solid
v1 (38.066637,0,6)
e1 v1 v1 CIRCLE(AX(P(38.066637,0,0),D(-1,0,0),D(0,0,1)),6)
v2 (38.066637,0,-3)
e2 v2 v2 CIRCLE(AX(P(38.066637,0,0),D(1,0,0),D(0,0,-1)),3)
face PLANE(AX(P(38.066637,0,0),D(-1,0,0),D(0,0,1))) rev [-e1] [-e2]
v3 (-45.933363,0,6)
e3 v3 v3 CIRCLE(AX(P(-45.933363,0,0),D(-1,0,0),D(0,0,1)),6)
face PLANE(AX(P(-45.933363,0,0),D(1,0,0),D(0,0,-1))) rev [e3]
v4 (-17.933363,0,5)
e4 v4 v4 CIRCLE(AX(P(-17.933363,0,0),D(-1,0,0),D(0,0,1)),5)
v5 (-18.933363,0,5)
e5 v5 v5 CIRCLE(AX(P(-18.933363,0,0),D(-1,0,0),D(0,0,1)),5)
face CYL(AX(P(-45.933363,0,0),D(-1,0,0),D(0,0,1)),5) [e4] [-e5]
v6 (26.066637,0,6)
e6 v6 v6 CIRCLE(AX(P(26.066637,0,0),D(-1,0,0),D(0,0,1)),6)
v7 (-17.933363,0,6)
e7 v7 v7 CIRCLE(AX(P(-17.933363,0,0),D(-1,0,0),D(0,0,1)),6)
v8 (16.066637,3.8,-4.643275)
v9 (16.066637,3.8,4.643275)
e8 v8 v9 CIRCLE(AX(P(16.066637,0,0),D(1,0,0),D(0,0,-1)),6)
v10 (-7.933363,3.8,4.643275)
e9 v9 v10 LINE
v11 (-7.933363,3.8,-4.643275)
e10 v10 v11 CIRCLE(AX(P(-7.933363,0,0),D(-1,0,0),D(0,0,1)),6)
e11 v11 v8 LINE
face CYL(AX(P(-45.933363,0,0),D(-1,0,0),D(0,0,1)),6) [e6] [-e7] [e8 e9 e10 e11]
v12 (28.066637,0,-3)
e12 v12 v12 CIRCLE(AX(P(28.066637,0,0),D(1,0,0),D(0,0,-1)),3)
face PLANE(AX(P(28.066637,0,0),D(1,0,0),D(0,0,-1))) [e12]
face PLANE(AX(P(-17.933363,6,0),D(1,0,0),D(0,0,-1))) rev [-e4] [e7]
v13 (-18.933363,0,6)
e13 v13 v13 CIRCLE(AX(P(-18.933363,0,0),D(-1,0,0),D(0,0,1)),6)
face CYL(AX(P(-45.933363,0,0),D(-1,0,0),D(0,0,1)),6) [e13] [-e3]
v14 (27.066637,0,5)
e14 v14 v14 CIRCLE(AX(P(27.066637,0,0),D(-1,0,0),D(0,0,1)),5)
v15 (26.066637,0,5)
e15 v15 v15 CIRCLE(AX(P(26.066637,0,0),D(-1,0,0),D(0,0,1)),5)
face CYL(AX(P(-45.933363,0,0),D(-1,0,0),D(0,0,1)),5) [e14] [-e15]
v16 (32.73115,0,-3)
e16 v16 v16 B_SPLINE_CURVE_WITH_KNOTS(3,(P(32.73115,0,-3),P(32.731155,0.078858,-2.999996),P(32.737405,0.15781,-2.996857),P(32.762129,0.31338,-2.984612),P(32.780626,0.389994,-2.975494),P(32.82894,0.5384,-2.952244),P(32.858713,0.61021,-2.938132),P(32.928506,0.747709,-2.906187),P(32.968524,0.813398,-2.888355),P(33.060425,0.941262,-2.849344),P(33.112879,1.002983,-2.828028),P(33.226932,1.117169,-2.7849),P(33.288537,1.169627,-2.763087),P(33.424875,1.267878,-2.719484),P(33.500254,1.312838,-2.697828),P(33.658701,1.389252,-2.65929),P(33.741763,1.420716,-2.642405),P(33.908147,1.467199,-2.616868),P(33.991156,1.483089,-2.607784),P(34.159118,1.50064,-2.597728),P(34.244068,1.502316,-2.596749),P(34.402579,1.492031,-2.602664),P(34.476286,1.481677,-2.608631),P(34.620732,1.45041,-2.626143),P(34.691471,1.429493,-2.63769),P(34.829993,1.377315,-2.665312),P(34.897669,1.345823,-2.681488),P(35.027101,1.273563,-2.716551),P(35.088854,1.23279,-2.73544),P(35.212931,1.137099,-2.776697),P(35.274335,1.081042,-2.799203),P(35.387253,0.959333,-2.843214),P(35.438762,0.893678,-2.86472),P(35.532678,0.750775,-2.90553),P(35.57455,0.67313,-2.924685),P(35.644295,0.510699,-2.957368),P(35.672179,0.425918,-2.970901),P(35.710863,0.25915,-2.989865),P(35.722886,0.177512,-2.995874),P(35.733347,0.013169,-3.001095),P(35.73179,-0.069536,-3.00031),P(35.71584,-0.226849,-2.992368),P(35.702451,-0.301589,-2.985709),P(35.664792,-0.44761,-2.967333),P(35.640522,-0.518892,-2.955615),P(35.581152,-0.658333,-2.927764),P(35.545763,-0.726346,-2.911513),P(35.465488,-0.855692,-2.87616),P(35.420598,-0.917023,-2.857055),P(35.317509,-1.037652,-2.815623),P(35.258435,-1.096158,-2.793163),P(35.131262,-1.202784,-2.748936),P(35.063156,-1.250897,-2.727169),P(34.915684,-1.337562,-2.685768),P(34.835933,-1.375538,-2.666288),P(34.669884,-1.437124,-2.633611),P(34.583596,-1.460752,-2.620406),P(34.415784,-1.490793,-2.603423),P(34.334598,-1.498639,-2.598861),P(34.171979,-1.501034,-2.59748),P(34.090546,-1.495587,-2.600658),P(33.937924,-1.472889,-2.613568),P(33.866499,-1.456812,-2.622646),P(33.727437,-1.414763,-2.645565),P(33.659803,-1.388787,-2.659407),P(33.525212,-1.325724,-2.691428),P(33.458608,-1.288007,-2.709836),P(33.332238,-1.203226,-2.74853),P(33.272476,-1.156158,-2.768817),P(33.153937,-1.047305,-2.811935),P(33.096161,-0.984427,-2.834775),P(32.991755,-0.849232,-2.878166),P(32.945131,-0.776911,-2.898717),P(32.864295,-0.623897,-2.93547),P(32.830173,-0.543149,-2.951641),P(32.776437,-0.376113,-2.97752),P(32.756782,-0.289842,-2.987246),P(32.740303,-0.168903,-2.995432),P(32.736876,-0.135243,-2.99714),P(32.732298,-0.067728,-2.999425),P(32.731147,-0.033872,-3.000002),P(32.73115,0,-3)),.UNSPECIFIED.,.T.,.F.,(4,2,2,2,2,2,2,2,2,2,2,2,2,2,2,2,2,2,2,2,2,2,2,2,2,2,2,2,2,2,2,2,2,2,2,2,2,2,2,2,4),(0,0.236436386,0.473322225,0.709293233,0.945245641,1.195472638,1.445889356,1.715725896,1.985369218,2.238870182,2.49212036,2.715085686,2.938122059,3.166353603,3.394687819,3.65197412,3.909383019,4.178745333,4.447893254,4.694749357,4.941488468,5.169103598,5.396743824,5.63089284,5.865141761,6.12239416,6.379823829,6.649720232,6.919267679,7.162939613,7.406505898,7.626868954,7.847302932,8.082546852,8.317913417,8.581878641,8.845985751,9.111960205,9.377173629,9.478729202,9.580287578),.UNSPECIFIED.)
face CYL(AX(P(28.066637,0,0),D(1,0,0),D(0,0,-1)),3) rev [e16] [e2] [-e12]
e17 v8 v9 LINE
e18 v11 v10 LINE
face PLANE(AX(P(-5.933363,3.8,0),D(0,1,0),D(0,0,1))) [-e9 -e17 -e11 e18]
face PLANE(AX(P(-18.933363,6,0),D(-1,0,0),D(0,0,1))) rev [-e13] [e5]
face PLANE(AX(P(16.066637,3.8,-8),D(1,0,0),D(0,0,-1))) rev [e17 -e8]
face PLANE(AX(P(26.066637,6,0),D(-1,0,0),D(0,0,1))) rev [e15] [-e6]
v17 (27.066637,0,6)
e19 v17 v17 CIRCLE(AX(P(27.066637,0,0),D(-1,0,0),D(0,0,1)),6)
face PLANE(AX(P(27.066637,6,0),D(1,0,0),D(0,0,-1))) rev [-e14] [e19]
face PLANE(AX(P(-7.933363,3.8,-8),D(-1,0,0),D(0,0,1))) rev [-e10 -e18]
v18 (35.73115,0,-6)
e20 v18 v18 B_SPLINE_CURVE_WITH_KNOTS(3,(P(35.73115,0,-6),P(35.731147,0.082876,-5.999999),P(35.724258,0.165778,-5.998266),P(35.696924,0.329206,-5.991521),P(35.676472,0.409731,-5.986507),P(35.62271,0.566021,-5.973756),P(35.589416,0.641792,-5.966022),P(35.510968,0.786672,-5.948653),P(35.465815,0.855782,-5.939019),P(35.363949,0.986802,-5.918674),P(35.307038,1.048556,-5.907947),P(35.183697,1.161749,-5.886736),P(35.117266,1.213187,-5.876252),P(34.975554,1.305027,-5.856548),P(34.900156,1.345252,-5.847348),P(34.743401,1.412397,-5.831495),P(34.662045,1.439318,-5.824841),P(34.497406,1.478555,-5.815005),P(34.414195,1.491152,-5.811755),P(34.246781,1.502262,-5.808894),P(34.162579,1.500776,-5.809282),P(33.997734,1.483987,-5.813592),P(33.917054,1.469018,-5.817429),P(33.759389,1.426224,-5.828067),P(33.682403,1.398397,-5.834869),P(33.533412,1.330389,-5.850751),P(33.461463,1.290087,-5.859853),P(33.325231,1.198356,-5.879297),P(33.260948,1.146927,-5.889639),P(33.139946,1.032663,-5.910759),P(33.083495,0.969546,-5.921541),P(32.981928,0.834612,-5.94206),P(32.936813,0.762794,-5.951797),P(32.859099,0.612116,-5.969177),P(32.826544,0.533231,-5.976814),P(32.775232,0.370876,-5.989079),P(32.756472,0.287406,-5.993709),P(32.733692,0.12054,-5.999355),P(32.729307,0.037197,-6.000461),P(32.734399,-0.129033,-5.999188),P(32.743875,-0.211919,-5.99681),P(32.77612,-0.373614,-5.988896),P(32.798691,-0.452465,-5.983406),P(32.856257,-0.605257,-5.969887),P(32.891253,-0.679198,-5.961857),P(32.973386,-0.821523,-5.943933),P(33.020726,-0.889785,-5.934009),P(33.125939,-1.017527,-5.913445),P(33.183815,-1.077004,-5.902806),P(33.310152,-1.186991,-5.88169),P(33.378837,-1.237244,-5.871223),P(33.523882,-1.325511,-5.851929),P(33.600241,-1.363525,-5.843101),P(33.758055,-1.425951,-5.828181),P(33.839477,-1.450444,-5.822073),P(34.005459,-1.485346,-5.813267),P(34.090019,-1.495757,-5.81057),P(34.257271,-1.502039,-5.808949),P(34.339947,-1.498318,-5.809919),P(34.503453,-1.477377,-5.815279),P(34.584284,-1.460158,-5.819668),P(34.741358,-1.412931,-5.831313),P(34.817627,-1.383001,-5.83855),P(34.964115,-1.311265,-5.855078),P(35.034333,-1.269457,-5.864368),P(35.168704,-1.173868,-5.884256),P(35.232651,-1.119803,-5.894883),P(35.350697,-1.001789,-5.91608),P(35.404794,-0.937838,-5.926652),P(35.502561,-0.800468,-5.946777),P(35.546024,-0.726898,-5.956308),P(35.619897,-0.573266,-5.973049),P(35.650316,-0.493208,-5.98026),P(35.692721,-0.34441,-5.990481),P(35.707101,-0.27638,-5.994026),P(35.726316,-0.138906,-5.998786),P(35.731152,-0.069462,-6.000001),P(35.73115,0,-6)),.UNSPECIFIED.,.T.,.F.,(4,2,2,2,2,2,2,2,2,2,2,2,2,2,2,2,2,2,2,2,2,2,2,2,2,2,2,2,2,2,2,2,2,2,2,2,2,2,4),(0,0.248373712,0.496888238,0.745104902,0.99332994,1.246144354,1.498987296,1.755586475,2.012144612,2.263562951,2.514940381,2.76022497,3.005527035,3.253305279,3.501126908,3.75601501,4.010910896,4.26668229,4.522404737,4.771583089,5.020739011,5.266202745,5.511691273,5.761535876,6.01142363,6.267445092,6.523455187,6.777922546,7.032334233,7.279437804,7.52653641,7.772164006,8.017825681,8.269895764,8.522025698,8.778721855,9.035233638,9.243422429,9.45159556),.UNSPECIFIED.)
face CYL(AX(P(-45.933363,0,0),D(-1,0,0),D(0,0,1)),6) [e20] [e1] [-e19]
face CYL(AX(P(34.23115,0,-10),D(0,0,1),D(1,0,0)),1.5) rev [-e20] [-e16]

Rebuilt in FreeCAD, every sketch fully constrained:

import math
import FreeCAD as App
import Part
import Sketcher
from FreeCAD import Vector
Q = App.Units.Quantity

doc = App.newDocument("Part")
body = doc.addObject("PartDesign::Body", "Body")

# Sketch on XY plane
sketch1 = body.newObject("Sketcher::SketchObject", "Sketch")
sketch1.AttachmentSupport = (doc.getObject("XY_Plane"), [""])
sketch1.MapMode = "FlatFace"
sketch1.addGeometry(Part.LineSegment(Vector(-45.933363, 0, 0), Vector(38.066637, 0, 0)), False)
sketch1.addGeometry(Part.LineSegment(Vector(38.066637, 0, 0), Vector(38.066637, 6, 0)), False)
sketch1.addGeometry(Part.LineSegment(Vector(38.066637, 6, 0), Vector(27.066637, 6, 0)), False)
sketch1.addGeometry(Part.LineSegment(Vector(27.066637, 6, 0), Vector(27.066637, 5, 0)), False)
sketch1.addGeometry(Part.LineSegment(Vector(27.066637, 5, 0), Vector(26.066637, 5, 0)), False)
sketch1.addGeometry(Part.LineSegment(Vector(26.066637, 5, 0), Vector(26.066637, 6, 0)), False)
sketch1.addGeometry(Part.LineSegment(Vector(26.066637, 6, 0), Vector(-17.933363, 6, 0)), False)
sketch1.addGeometry(Part.LineSegment(Vector(-17.933363, 6, 0), Vector(-17.933363, 5, 0)), False)
sketch1.addGeometry(Part.LineSegment(Vector(-17.933363, 5, 0), Vector(-18.933363, 5, 0)), False)
sketch1.addGeometry(Part.LineSegment(Vector(-18.933363, 5, 0), Vector(-18.933363, 6, 0)), False)
sketch1.addGeometry(Part.LineSegment(Vector(-18.933363, 6, 0), Vector(-45.933363, 6, 0)), False)
sketch1.addGeometry(Part.LineSegment(Vector(-45.933363, 6, 0), Vector(-45.933363, 0, 0)), False)
sketch1.addConstraint(Sketcher.Constraint("Coincident", 0, 2, 1, 1))
sketch1.addConstraint(Sketcher.Constraint("Coincident", 1, 2, 2, 1))
sketch1.addConstraint(Sketcher.Constraint("Coincident", 2, 2, 3, 1))
sketch1.addConstraint(Sketcher.Constraint("Coincident", 3, 2, 4, 1))
sketch1.addConstraint(Sketcher.Constraint("Coincident", 4, 2, 5, 1))
sketch1.addConstraint(Sketcher.Constraint("Coincident", 5, 2, 6, 1))
sketch1.addConstraint(Sketcher.Constraint("Coincident", 6, 2, 7, 1))
sketch1.addConstraint(Sketcher.Constraint("Coincident", 7, 2, 8, 1))
sketch1.addConstraint(Sketcher.Constraint("Coincident", 8, 2, 9, 1))
sketch1.addConstraint(Sketcher.Constraint("Coincident", 9, 2, 10, 1))
sketch1.addConstraint(Sketcher.Constraint("Coincident", 10, 2, 11, 1))
sketch1.addConstraint(Sketcher.Constraint("Coincident", 11, 2, 0, 1))
sketch1.addConstraint(Sketcher.Constraint("Horizontal", 0))
sketch1.addConstraint(Sketcher.Constraint("Vertical", 1))
sketch1.addConstraint(Sketcher.Constraint("Horizontal", 2))
sketch1.addConstraint(Sketcher.Constraint("Vertical", 3))
sketch1.addConstraint(Sketcher.Constraint("Horizontal", 4))
sketch1.addConstraint(Sketcher.Constraint("Vertical", 5))
sketch1.addConstraint(Sketcher.Constraint("Horizontal", 6))
sketch1.addConstraint(Sketcher.Constraint("Vertical", 7))
sketch1.addConstraint(Sketcher.Constraint("Horizontal", 8))
sketch1.addConstraint(Sketcher.Constraint("Vertical", 9))
sketch1.addConstraint(Sketcher.Constraint("Horizontal", 10))
sketch1.addConstraint(Sketcher.Constraint("Vertical", 11))
sketch1.addConstraint(Sketcher.Constraint("PointOnObject", 0, 2, -1))
sketch1.addConstraint(Sketcher.Constraint("Horizontal", 2, 2, 5, 2))
sketch1.addConstraint(Sketcher.Constraint("Horizontal", 4, 2, 7, 2))
sketch1.addConstraint(Sketcher.Constraint("Horizontal", 6, 2, 9, 2))
sketch1.addConstraint(Sketcher.Constraint("Equal", 4, 8))
sketch1.addConstraint(Sketcher.Constraint("Equal", 8, 3))
sketch1.addConstraint(Sketcher.Constraint("DistanceX", 0, 1, 0, 2, Q("84 mm")))
sketch1.addConstraint(Sketcher.Constraint("DistanceX", 2, 2, 2, 1, Q("11 mm")))
sketch1.addConstraint(Sketcher.Constraint("DistanceX", 4, 2, 4, 1, Q("1 mm")))
sketch1.addConstraint(Sketcher.Constraint("DistanceX", 6, 2, 6, 1, Q("44 mm")))
sketch1.addConstraint(Sketcher.Constraint("DistanceY", 1, 1, 1, 2, Q("6 mm")))
sketch1.addConstraint(Sketcher.Constraint("DistanceX", -1, 1, 0, 2, Q("38.066637 mm")))
revolution = body.newObject("PartDesign::Revolution", "Revolution")
revolution.Profile = sketch1
revolution.ReferenceAxis = (sketch1, ["H_Axis"])
revolution.Angle = 360

# Sketch on YZ plane
sketch2 = body.newObject("Sketcher::SketchObject", "Sketch001")
sketch2.AttachmentSupport = (doc.getObject("YZ_Plane"), [""])
sketch2.MapMode = "FlatFace"
sketch2.AttachmentOffset = App.Placement(Vector(0, 0, 38.066637), App.Rotation())
sketch2.addGeometry(Part.Circle(Vector(0, 0, 0), Vector(0, 0, 1), 3), False)
sketch2.addConstraint(Sketcher.Constraint("Coincident", 0, 3, -1, 1))
sketch2.addConstraint(Sketcher.Constraint("Diameter", 0, Q("6 mm")))
pocket1 = body.newObject("PartDesign::Pocket", "Pocket")
pocket1.Profile = sketch2
pocket1.Length = 10

# Sketch on XY plane
sketch3 = body.newObject("Sketcher::SketchObject", "Sketch002")
sketch3.AttachmentSupport = (doc.getObject("XY_Plane"), [""])
sketch3.MapMode = "FlatFace"
sketch3.addGeometry(Part.Circle(Vector(34.23115, 0, 0), Vector(0, 0, 1), 1.5), False)
sketch3.addConstraint(Sketcher.Constraint("PointOnObject", 0, 3, -1))
sketch3.addConstraint(Sketcher.Constraint("Diameter", 0, Q("3 mm")))
sketch3.addConstraint(Sketcher.Constraint("DistanceX", -1, 1, 0, 3, Q("34.23115 mm")))
pocket2 = body.newObject("PartDesign::Pocket", "Pocket001")
pocket2.Profile = sketch3
pocket2.Length = 10

# Sketch on XZ plane
sketch4 = body.newObject("Sketcher::SketchObject", "Sketch003")
sketch4.AttachmentSupport = (doc.getObject("XZ_Plane"), [""])
sketch4.MapMode = "FlatFace"
sketch4.AttachmentOffset = App.Placement(Vector(0, 0, -6), App.Rotation())
sketch4.addGeometry(Part.LineSegment(Vector(14.066637, -2, 0), Vector(-5.933363, -2, 0)), False)
sketch4.addGeometry(Part.ArcOfCircle(Part.Circle(Vector(-5.933363, 0, 0), Vector(0, 0, 1), 2), math.radians(90), math.radians(270)), False)
sketch4.addGeometry(Part.LineSegment(Vector(-5.933363, 2, 0), Vector(14.066637, 2, 0)), False)
sketch4.addGeometry(Part.ArcOfCircle(Part.Circle(Vector(14.066637, 0, 0), Vector(0, 0, 1), 2), math.radians(-90), math.radians(90)), False)
sketch4.addConstraint(Sketcher.Constraint("Tangent", 0, 2, 1, 2))
sketch4.addConstraint(Sketcher.Constraint("Tangent", 1, 1, 2, 1))
sketch4.addConstraint(Sketcher.Constraint("Tangent", 2, 2, 3, 2))
sketch4.addConstraint(Sketcher.Constraint("Tangent", 3, 1, 0, 1))
sketch4.addConstraint(Sketcher.Constraint("Horizontal", 0))
sketch4.addConstraint(Sketcher.Constraint("Horizontal", 2))
sketch4.addConstraint(Sketcher.Constraint("PointOnObject", 1, 3, -1))
sketch4.addConstraint(Sketcher.Constraint("Radius", 1, Q("2 mm")))
sketch4.addConstraint(Sketcher.Constraint("DistanceX", 0, 2, 0, 1, Q("20 mm")))
sketch4.addConstraint(Sketcher.Constraint("DistanceX", 1, 3, -1, 1, Q("5.933363 mm")))
pocket3 = body.newObject("PartDesign::Pocket", "Pocket002")
pocket3.Profile = sketch4
pocket3.Length = 2.2
pocket3.Reversed = True

# Sketch on XY plane
sketch5 = body.newObject("Sketcher::SketchObject", "Sketch004")
sketch5.AttachmentSupport = (doc.getObject("XY_Plane"), [""])
sketch5.MapMode = "FlatFace"
sketch5.addGeometry(Part.LineSegment(Vector(-7.933363, 7.513708, 0), Vector(-7.933363, 3.8, 0)), False)
sketch5.addGeometry(Part.LineSegment(Vector(-7.933363, 3.8, 0), Vector(16.066637, 3.8, 0)), False)
sketch5.addGeometry(Part.LineSegment(Vector(16.066637, 3.8, 0), Vector(16.066637, 7.513708, 0)), False)
sketch5.addGeometry(Part.LineSegment(Vector(16.066637, 7.513708, 0), Vector(-7.933363, 7.513708, 0)), False)
sketch5.addConstraint(Sketcher.Constraint("Coincident", 0, 2, 1, 1))
sketch5.addConstraint(Sketcher.Constraint("Coincident", 1, 2, 2, 1))
sketch5.addConstraint(Sketcher.Constraint("Coincident", 2, 2, 3, 1))
sketch5.addConstraint(Sketcher.Constraint("Coincident", 3, 2, 0, 1))
sketch5.addConstraint(Sketcher.Constraint("Vertical", 0))
sketch5.addConstraint(Sketcher.Constraint("Horizontal", 1))
sketch5.addConstraint(Sketcher.Constraint("Vertical", 2))
sketch5.addConstraint(Sketcher.Constraint("Horizontal", 3))
sketch5.addConstraint(Sketcher.Constraint("DistanceX", 1, 1, 1, 2, Q("24 mm")))
sketch5.addConstraint(Sketcher.Constraint("DistanceY", -1, 1, 0, 2, Q("3.8 mm")))
sketch5.addConstraint(Sketcher.Constraint("DistanceY", 0, 2, 0, 1, Q("3.713708 mm")))
sketch5.addConstraint(Sketcher.Constraint("DistanceX", 0, 2, -1, 1, Q("7.933363 mm")))
pocket4 = body.newObject("PartDesign::Pocket", "Pocket003")
pocket4.Profile = sketch5
pocket4.Length = 16
pocket4.Midplane = True

doc.recompute()
